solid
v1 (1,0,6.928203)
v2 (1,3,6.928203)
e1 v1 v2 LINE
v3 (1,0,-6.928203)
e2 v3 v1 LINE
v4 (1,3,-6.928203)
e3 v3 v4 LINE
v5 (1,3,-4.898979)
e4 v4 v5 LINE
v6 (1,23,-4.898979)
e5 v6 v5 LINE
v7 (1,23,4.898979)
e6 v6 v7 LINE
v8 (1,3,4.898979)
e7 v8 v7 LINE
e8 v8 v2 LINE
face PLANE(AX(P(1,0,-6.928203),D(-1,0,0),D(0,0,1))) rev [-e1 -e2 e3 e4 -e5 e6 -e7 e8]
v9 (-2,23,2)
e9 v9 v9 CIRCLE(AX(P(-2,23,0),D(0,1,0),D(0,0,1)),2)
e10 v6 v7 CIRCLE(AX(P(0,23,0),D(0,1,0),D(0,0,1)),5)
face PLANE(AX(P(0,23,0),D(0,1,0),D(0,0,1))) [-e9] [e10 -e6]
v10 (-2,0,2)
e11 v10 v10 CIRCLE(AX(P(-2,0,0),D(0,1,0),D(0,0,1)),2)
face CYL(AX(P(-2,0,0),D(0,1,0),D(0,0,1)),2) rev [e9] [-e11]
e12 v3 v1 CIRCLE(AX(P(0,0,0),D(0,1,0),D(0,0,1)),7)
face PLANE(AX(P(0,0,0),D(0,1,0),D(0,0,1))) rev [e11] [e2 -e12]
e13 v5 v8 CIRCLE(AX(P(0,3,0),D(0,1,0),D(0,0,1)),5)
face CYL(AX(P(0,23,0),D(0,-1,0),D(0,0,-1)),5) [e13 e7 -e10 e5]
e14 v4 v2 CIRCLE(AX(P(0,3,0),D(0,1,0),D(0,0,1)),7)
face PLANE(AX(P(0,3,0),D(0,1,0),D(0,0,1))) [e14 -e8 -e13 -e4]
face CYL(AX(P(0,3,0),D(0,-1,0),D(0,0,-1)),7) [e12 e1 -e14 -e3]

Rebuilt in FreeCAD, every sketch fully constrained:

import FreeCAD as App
import Part
import Sketcher
from FreeCAD import Vector
Q = App.Units.Quantity


def add_polygon(sketch, points):
    """Adds a closed chain of lines whose ends are joined by coincident constraints."""
    first, n = sketch.GeometryCount, len(points)
    for a, b in zip(points, points[1:] + points[:1]):
        sketch.addGeometry(Part.LineSegment(App.Vector(*a, 0), App.Vector(*b, 0)), False)
    for i in range(n):
        sketch.addConstraint(Sketcher.Constraint("Coincident", first + i, 2, first + (i + 1) % n, 1))

doc = App.newDocument("Part")
body = doc.addObject("PartDesign::Body", "Body")

# Sketch on XZ plane
sketch1 = doc.addObject("Sketcher::SketchObject", "Sketch")
body.addObject(sketch1)
sketch1.AttachmentSupport = (doc.XZ_Plane, [""])
sketch1.MapMode = "FlatFace"
sketch1.addGeometry(Part.Circle(Vector(0, 0, 0), Vector(0, 0, 1), 7), False)
sketch1.addConstraint(Sketcher.Constraint("Coincident", 0, 3, -1, 1))
sketch1.addConstraint(Sketcher.Constraint("Diameter", 0, Q("14 mm")))
pad1 = doc.addObject("PartDesign::Pad", "Pad")
body.addObject(pad1)
pad1.Profile = sketch1
pad1.Length = 3
pad1.Reversed = True

# Sketch on XZ plane
sketch2 = doc.addObject("Sketcher::SketchObject", "Sketch001")
body.addObject(sketch2)
sketch2.AttachmentSupport = (doc.XZ_Plane, [""])
sketch2.MapMode = "FlatFace"
sketch2.AttachmentOffset = App.Placement(Vector(0, 0, -3), App.Rotation())
sketch2.addGeometry(Part.Circle(Vector(0, 0, 0), Vector(0, 0, 1), 5), False)
sketch2.addConstraint(Sketcher.Constraint("Coincident", 0, 3, -1, 1))
sketch2.addConstraint(Sketcher.Constraint("Diameter", 0, Q("10 mm")))
pad2 = doc.addObject("PartDesign::Pad", "Pad001")
body.addObject(pad2)
pad2.Profile = sketch2
pad2.Length = 20
pad2.Reversed = True

# Sketch on XZ plane
sketch3 = doc.addObject("Sketcher::SketchObject", "Sketch002")
body.addObject(sketch3)
sketch3.AttachmentSupport = (doc.XZ_Plane, [""])
sketch3.MapMode = "FlatFace"
sketch3.AttachmentOffset = App.Placement(Vector(0, 0, -23), App.Rotation())
sketch3.addGeometry(Part.Circle(Vector(-2, 0, 0), Vector(0, 0, 1), 2), False)
sketch3.addConstraint(Sketcher.Constraint("PointOnObject", 0, 3, -1))
sketch3.addConstraint(Sketcher.Constraint("Diameter", 0, Q("4 mm")))
sketch3.addConstraint(Sketcher.Constraint("DistanceX", 0, 3, -1, 1, Q("2 mm")))
pocket1 = doc.addObject("PartDesign::Pocket", "Pocket")
body.addObject(pocket1)
pocket1.Profile = sketch3
pocket1.Type = "ThroughAll"
pocket1.Reversed = True

# Sketch on XZ plane
sketch4 = doc.addObject("Sketcher::SketchObject", "Sketch003")
body.addObject(sketch4)
sketch4.AttachmentSupport = (doc.XZ_Plane, [""])
sketch4.MapMode = "FlatFace"
sketch4.AttachmentOffset = App.Placement(Vector(0, 0, -23), App.Rotation())
add_polygon(sketch4, [(1, -7), (1, 7), (10, 7), (10, -7)])  # lines 0-3
sketch4.addConstraint(Sketcher.Constraint("Vertical", 0))
sketch4.addConstraint(Sketcher.Constraint("Horizontal", 1))
sketch4.addConstraint(Sketcher.Constraint("Vertical", 2))
sketch4.addConstraint(Sketcher.Constraint("Horizontal", 3))
sketch4.addConstraint(Sketcher.Constraint("DistanceX", -1, 1, 0, 2, Q("1 mm")))
sketch4.addConstraint(Sketcher.Constraint("DistanceX", 1, 1, 1, 2, Q("8.61608 mm")))
sketch4.addConstraint(Sketcher.Constraint("DistanceY", 0, 1, 0, 2, Q("14.040724 mm")))
sketch4.addConstraint(Sketcher.Constraint("DistanceY", -1, 1, 0, 2, Q("7.11252 mm")))
pocket2 = doc.addObject("PartDesign::Pocket", "Pocket001")
body.addObject(pocket2)
pocket2.Profile = sketch4
pocket2.Type = "ThroughAll"
pocket2.Reversed = True

doc.recompute()
